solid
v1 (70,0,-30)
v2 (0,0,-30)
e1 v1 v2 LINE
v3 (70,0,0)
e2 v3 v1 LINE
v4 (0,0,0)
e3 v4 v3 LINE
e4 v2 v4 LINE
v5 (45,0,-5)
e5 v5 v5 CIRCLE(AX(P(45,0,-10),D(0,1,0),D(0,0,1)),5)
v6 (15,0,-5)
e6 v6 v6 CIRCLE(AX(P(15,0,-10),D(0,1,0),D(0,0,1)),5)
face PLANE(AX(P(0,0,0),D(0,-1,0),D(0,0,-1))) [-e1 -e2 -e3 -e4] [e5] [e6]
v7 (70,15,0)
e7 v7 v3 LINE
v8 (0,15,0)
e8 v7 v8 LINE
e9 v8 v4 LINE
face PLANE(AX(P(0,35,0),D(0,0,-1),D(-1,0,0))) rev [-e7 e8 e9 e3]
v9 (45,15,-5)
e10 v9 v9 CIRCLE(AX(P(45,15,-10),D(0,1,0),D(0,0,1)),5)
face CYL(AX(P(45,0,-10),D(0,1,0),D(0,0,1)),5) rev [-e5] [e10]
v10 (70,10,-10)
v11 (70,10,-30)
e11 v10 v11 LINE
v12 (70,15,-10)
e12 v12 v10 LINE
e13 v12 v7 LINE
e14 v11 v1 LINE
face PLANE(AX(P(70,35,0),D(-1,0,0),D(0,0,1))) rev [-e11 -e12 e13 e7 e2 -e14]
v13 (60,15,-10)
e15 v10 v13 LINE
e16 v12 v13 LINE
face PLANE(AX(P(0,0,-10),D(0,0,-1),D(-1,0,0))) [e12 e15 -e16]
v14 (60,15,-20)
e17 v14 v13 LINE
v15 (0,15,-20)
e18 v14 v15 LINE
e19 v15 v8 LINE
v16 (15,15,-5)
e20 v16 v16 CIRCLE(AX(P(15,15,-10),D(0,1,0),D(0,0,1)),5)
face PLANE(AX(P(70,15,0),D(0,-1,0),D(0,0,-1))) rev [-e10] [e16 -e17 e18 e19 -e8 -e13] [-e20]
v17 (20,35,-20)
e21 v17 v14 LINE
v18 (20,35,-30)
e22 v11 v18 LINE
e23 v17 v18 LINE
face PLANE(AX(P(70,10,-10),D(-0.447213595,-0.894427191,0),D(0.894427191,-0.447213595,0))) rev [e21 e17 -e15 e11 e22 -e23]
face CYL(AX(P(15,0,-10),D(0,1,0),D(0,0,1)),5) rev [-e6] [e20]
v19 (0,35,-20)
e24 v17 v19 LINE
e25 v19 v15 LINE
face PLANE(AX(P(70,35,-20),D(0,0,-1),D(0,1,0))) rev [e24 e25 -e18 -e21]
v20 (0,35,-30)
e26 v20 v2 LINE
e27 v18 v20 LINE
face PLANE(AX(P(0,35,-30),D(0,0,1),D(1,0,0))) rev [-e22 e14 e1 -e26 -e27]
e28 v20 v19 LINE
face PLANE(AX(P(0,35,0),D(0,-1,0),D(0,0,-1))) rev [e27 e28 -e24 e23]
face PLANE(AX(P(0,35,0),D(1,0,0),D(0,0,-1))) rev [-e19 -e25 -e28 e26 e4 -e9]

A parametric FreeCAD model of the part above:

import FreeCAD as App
import Part
import Sketcher
from FreeCAD import Vector

doc = App.newDocument("Part")
body = doc.addObject("PartDesign::Body", "Body")

sketch1 = body.newObject("Sketcher::SketchObject", "Sketch")
sketch1.AttachmentSupport = (doc.getObject("XZ_Plane"), [""])
sketch1.MapMode = "FlatFace"
sketch1.addGeometry([
    Part.LineSegment(Vector(0, -30, 0), Vector(0, 0, 0)),
    Part.LineSegment(Vector(0, 0, 0), Vector(70, 0, 0)),
    Part.LineSegment(Vector(70, 0, 0), Vector(70, -30, 0)),
    Part.LineSegment(Vector(70, -30, 0), Vector(0, -30, 0)),
], False)
sketch1.addConstraint([
    Sketcher.Constraint("Coincident", 0, 2, 1, 1),
    Sketcher.Constraint("Coincident", 1, 2, 2, 1),
    Sketcher.Constraint("Coincident", 2, 2, 3, 1),
    Sketcher.Constraint("Coincident", 3, 2, 0, 1),
    Sketcher.Constraint("Vertical", 0),
    Sketcher.Constraint("Horizontal", 1),
    Sketcher.Constraint("Vertical", 2),
    Sketcher.Constraint("Horizontal", 3),
    Sketcher.Constraint("Coincident", 0, 2, -1, 1),
    Sketcher.Constraint("DistanceX", 1, 1, 1, 2, 70.0),
    Sketcher.Constraint("DistanceY", 0, 1, 0, 2, 30.0),
])
pad1 = body.newObject("PartDesign::Pad", "Pad")
pad1.Profile = sketch1
pad1.Length = 35
pad1.Reversed = True

sketch2 = body.newObject("Sketcher::SketchObject", "Sketch001")
sketch2.AttachmentSupport = (doc.getObject("XY_Plane"), [""])
sketch2.MapMode = "FlatFace"
sketch2.AttachmentOffset = App.Placement(Vector(0, 0, -30), App.Rotation())
sketch2.addGeometry([
    Part.LineSegment(Vector(70, 35, 0), Vector(70, 10, 0)),
    Part.LineSegment(Vector(70, 10, 0), Vector(20, 35, 0)),
    Part.LineSegment(Vector(20, 35, 0), Vector(70, 35, 0)),
], False)
sketch2.addConstraint([
    Sketcher.Constraint("Coincident", 0, 2, 1, 1),
    Sketcher.Constraint("Coincident", 1, 2, 2, 1),
    Sketcher.Constraint("Coincident", 2, 2, 0, 1),
    Sketcher.Constraint("Vertical", 0),
    Sketcher.Constraint("Horizontal", 2),
    Sketcher.Constraint("DistanceX", 2, 1, 2, 2, 50.0),
    Sketcher.Constraint("DistanceY", 0, 2, 0, 1, 25.0),
    Sketcher.Constraint("DistanceX", -1, 1, 0, 2, 70.0),
    Sketcher.Constraint("DistanceY", -1, 1, 0, 2, 10.0),
])
pocket1 = body.newObject("PartDesign::Pocket", "Pocket")
pocket1.Profile = sketch2
pocket1.Length = 20
pocket1.Reversed = True

sketch3 = body.newObject("Sketcher::SketchObject", "Sketch002")
sketch3.AttachmentSupport = (doc.getObject("YZ_Plane"), [""])
sketch3.MapMode = "FlatFace"
sketch3.addGeometry([
    Part.LineSegment(Vector(35, -20, 0), Vector(15, -20, 0)),
    Part.LineSegment(Vector(15, -20, 0), Vector(15, 0, 0)),
    Part.LineSegment(Vector(15, 0, 0), Vector(35, 0, 0)),
    Part.LineSegment(Vector(35, 0, 0), Vector(35, -20, 0)),
], False)
sketch3.addConstraint([
    Sketcher.Constraint("Coincident", 0, 2, 1, 1),
    Sketcher.Constraint("Coincident", 1, 2, 2, 1),
    Sketcher.Constraint("Coincident", 2, 2, 3, 1),
    Sketcher.Constraint("Coincident", 3, 2, 0, 1),
    Sketcher.Constraint("Horizontal", 0),
    Sketcher.Constraint("Vertical", 1),
    Sketcher.Constraint("Horizontal", 2),
    Sketcher.Constraint("Vertical", 3),
    Sketcher.Constraint("PointOnObject", 1, 2, -1),
    Sketcher.Constraint("Equal", 2, 1),
    Sketcher.Constraint("DistanceX", 0, 2, 0, 1, 20.0),
    Sketcher.Constraint("DistanceX", -1, 1, 0, 2, 15.0),
])
pocket2 = body.newObject("PartDesign::Pocket", "Pocket001")
pocket2.Profile = sketch3
pocket2.Type = "ThroughAll"
pocket2.Reversed = True

sketch4 = body.newObject("Sketcher::SketchObject", "Sketch003")
sketch4.AttachmentSupport = (doc.getObject("XZ_Plane"), [""])
sketch4.MapMode = "FlatFace"
sketch4.AttachmentOffset = App.Placement(Vector(0, 0, -15), App.Rotation())
sketch4.addGeometry(Part.Circle(Vector(15, -10, 0), Vector(0, 0, 1), 5), False)
sketch4.addConstraint([
    Sketcher.Constraint("Diameter", 0, 10.0),
    Sketcher.Constraint("DistanceX", -1, 1, 0, 3, 15.0),
    Sketcher.Constraint("DistanceY", 0, 3, -1, 1, 10.0),
])
pocket3 = body.newObject("PartDesign::Pocket", "Pocket002")
pocket3.Profile = sketch4
pocket3.Type = "ThroughAll"
pocket3.Reversed = True

sketch5 = body.newObject("Sketcher::SketchObject", "Sketch004")
sketch5.AttachmentSupport = (doc.getObject("XZ_Plane"), [""])
sketch5.MapMode = "FlatFace"
sketch5.AttachmentOffset = App.Placement(Vector(0, 0, -15), App.Rotation())
sketch5.addGeometry(Part.Circle(Vector(45, -10, 0), Vector(0, 0, 1), 5), False)
sketch5.addConstraint([
    Sketcher.Constraint("Diameter", 0, 10.0),
    Sketcher.Constraint("DistanceX", -1, 1, 0, 3, 45.0),
    Sketcher.Constraint("DistanceY", 0, 3, -1, 1, 10.0),
])
pocket4 = body.newObject("PartDesign::Pocket", "Pocket003")
pocket4.Profile = sketch5
pocket4.Type = "ThroughAll"
pocket4.Reversed = True

doc.recompute()
